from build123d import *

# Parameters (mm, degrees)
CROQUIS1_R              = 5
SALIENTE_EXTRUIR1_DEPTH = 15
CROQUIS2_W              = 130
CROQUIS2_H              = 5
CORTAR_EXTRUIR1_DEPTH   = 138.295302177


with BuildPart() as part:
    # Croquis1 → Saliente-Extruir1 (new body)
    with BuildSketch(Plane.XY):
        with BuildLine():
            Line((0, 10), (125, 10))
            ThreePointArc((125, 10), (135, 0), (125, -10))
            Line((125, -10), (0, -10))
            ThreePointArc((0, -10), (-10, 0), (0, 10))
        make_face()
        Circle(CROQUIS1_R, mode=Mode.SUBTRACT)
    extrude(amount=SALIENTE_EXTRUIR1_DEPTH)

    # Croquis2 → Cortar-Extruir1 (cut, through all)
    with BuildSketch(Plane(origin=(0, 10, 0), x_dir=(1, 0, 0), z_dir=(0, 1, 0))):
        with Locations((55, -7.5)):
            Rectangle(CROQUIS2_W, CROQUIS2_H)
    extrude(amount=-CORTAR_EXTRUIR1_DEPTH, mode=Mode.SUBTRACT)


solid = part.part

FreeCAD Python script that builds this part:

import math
import FreeCAD as App
import Part
import Sketcher
Q = App.Units.Quantity


def add_polygon(sketch, points):
    """Adds a closed chain of lines whose ends are joined by coincident constraints."""
    first, n = sketch.GeometryCount, len(points)
    for a, b in zip(points, points[1:] + points[:1]):
        sketch.addGeometry(Part.LineSegment(App.Vector(*a, 0), App.Vector(*b, 0)), False)
    for i in range(n):
        sketch.addConstraint(Sketcher.Constraint("Coincident", first + i, 2, first + (i + 1) % n, 1))

doc = App.newDocument("Part")
body = doc.addObject("PartDesign::Body", "Body")

# Sketch on XY plane
sketch1 = body.newObject("Sketcher::SketchObject", "Sketch")
sketch1.AttachmentSupport = (doc.getObject("XY_Plane"), [""])
sketch1.MapMode = "FlatFace"
sketch1.addGeometry([
    Part.LineSegment(App.Vector(125, 10, 0), App.Vector(0, 10, 0)),  # 0
    Part.ArcOfCircle(Part.Circle(App.Vector(0, 0, 0), App.Vector(0, 0, 1), 10), math.radians(90), math.radians(270)),  # 1
    Part.LineSegment(App.Vector(0, -10, 0), App.Vector(125, -10, 0)),  # 2
    Part.ArcOfCircle(Part.Circle(App.Vector(125, 0, 0), App.Vector(0, 0, 1), 10), math.radians(-90), math.radians(90)),  # 3
    Part.Circle(App.Vector(0, 0, 0), App.Vector(0, 0, 1), 5),  # 4
], False)
sketch1.addConstraint([
    Sketcher.Constraint("Tangent", 0, 2, 1, 1),
    Sketcher.Constraint("Tangent", 1, 2, 2, 1),
    Sketcher.Constraint("Tangent", 2, 2, 3, 1),
    Sketcher.Constraint("Tangent", 3, 2, 0, 1),
    Sketcher.Constraint("Horizontal", 0),
    Sketcher.Constraint("Horizontal", 2),
    Sketcher.Constraint("Coincident", 1, 3, -1, 1),
    Sketcher.Constraint("Coincident", 4, 3, -1, 1),
    Sketcher.Constraint("Diameter", 4, Q("10 mm")),
    Sketcher.Constraint("Radius", 1, Q("10 mm")),
    Sketcher.Constraint("DistanceX", 0, 2, 0, 1, Q("125 mm")),
])
pad1 = body.newObject("PartDesign::Pad", "Pad")
pad1.Profile = sketch1
pad1.Length = 15

# Sketch on XZ plane
sketch2 = body.newObject("Sketcher::SketchObject", "Sketch001")
sketch2.AttachmentSupport = (doc.getObject("XZ_Plane"), [""])
sketch2.MapMode = "FlatFace"
sketch2.AttachmentOffset = App.Placement(App.Vector(0, 0, -10), App.Rotation())
add_polygon(sketch2, [(-10, 5), (-10, 10), (120, 10), (120, 5)])  # lines 0-3
sketch2.addConstraint([
    Sketcher.Constraint("Vertical", 0),
    Sketcher.Constraint("Horizontal", 1),
    Sketcher.Constraint("Vertical", 2),
    Sketcher.Constraint("Horizontal", 3),
    Sketcher.Constraint("DistanceX", 1, 1, 1, 2, Q("130 mm")),
    Sketcher.Constraint("DistanceY", 0, 1, 0, 2, Q("5 mm")),
    Sketcher.Constraint("DistanceX", 0, 2, -1, 1, Q("10 mm")),
    Sketcher.Constraint("DistanceY", -1, 1, 0, 2, Q("10 mm")),
])
pocket1 = body.newObject("PartDesign::Pocket", "Pocket")
pocket1.Profile = sketch2
pocket1.Type = "ThroughAll"
pocket1.Reversed = True

doc.recompute()
